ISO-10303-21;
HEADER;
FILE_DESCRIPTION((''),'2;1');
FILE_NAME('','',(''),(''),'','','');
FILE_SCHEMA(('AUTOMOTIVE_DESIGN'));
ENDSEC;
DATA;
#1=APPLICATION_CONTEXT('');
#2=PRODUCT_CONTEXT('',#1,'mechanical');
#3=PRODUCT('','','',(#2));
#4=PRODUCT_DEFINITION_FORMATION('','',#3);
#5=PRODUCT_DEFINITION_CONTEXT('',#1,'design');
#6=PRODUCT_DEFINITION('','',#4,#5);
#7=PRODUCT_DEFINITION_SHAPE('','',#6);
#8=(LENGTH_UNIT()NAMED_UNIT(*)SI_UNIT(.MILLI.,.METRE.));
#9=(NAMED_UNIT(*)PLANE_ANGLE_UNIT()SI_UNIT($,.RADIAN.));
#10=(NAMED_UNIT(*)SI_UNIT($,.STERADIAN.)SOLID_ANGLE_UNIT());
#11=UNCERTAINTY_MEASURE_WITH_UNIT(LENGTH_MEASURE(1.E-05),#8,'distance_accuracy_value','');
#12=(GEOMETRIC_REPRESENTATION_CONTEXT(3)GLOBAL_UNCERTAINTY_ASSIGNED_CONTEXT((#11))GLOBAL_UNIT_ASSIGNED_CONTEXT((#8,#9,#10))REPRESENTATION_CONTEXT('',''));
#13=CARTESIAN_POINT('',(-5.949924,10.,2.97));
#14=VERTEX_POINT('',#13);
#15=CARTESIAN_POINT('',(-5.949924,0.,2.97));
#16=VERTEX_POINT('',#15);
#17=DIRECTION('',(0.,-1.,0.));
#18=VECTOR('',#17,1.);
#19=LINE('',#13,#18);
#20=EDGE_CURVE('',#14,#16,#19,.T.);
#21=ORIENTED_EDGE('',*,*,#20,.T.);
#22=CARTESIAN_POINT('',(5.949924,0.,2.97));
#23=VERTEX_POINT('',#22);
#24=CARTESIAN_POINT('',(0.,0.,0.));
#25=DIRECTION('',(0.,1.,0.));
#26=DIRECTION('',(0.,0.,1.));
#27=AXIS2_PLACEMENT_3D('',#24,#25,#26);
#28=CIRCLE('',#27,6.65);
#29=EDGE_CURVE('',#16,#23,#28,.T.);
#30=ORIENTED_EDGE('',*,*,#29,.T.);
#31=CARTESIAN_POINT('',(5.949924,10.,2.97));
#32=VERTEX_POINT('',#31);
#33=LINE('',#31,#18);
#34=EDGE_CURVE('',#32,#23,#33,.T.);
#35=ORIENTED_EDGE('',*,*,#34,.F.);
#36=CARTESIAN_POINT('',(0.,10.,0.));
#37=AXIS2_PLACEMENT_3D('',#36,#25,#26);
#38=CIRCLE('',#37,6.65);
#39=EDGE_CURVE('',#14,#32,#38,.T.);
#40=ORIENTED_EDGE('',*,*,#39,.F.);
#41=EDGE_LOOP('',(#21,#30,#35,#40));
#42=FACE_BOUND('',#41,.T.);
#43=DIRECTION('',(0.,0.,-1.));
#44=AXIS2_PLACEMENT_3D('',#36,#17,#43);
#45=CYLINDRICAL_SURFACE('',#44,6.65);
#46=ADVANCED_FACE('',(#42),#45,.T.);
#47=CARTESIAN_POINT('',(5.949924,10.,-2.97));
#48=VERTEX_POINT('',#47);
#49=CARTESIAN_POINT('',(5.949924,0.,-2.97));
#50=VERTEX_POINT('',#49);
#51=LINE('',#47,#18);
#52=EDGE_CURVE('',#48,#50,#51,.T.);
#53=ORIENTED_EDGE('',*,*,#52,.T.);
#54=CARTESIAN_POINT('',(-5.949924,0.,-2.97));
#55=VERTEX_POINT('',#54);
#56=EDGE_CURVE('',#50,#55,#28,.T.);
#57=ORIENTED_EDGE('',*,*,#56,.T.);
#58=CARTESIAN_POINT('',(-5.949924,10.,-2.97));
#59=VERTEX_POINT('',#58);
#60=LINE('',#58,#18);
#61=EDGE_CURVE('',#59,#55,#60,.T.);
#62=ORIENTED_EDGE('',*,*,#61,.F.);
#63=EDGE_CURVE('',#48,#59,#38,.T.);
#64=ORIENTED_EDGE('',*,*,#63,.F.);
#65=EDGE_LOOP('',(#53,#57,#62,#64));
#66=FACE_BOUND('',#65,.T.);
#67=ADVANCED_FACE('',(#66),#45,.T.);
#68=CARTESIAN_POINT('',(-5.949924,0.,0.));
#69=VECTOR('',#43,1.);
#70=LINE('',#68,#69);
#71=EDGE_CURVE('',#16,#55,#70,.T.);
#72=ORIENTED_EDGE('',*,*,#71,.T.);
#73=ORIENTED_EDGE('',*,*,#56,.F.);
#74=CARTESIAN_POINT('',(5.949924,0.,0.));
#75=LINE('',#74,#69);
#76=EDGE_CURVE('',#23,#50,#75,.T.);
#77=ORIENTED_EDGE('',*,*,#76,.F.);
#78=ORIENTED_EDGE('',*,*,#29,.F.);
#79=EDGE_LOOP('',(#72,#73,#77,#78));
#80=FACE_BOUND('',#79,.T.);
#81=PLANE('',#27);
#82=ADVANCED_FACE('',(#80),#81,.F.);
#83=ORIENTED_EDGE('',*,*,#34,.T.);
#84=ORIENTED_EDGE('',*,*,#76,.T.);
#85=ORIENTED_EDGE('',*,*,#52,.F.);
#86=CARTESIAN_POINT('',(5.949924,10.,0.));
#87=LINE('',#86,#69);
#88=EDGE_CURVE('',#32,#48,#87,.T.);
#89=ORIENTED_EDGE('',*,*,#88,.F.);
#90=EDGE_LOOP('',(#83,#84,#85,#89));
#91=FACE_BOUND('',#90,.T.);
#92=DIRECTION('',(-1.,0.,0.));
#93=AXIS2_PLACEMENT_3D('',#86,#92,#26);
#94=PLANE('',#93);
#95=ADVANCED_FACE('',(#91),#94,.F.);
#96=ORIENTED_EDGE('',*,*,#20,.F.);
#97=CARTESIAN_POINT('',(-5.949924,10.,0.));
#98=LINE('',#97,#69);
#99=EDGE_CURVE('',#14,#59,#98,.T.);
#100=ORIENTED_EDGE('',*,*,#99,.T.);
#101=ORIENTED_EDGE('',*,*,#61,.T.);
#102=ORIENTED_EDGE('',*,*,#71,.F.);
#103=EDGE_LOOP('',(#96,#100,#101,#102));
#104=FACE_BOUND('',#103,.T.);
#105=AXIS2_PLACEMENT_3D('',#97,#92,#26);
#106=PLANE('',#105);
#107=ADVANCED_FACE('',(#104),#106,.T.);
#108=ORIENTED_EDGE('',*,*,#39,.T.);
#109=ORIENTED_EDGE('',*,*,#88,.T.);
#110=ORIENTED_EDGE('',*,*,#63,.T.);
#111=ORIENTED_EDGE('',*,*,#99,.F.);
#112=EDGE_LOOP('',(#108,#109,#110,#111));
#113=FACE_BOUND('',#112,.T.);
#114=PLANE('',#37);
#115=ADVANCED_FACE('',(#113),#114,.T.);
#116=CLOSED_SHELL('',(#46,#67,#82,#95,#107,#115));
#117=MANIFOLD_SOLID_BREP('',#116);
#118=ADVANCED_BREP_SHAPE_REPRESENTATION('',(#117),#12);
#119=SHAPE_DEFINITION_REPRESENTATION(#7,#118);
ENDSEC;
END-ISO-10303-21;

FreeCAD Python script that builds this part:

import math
import FreeCAD as App
import Part
import Sketcher
Q = App.Units.Quantity

doc = App.newDocument("Part")
params = doc.addObject("Spreadsheet::Sheet", "Params")
for row, (alias, value) in enumerate([
    ("sketch1_radius", "6.65 mm"),
    ("sketch1_height", "5.94 mm"),
    ("pad1_length", "10 mm"),
], start=1):
    params.set(f"A{row}", alias)
    params.set(f"B{row}", "=" + value)
    params.setAlias(f"B{row}", alias)

body = doc.addObject("PartDesign::Body", "Body")

# Sketch on XZ plane
sketch1 = body.newObject("Sketcher::SketchObject", "Sketch")
sketch1.AttachmentSupport = (doc.getObject("XZ_Plane"), [""])
sketch1.MapMode = "FlatFace"
sketch1.addGeometry([
    Part.LineSegment(App.Vector(-6, -3, 0), App.Vector(-6, 3, 0)),
    Part.ArcOfCircle(Part.Circle(App.Vector(0, 0, 0), App.Vector(0, 0, 1), 7), math.radians(27), math.radians(153)),
    Part.LineSegment(App.Vector(6, 3, 0), App.Vector(6, -3, 0)),
    Part.ArcOfCircle(Part.Circle(App.Vector(0, 0, 0), App.Vector(0, 0, 1), 7), math.radians(-153), math.radians(-27)),
], False)
sketch1.addConstraint([
    Sketcher.Constraint("Coincident", 0, 2, 1, 2),
    Sketcher.Constraint("Coincident", 1, 1, 2, 1),
    Sketcher.Constraint("Coincident", 2, 2, 3, 2),
    Sketcher.Constraint("Coincident", 3, 1, 0, 1),
    Sketcher.Constraint("Vertical", 0),
    Sketcher.Constraint("Vertical", 2),
    Sketcher.Constraint("Coincident", 1, 3, -1, 1),
    Sketcher.Constraint("Coincident", 3, 3, -1, 1),
    Sketcher.Constraint("Equal", 1, 3),
    Sketcher.Constraint("Horizontal", 0, 2, 1, 1),
    Sketcher.Constraint("Radius", 1, Q("6.65 mm")),
    Sketcher.Constraint("DistanceY", 0, 1, 0, 2, Q("5.94 mm")),
])
sketch1.setExpression("Constraints[10]", "Params.sketch1_radius")
sketch1.setExpression("Constraints[11]", "Params.sketch1_height")
pad1 = body.newObject("PartDesign::Pad", "Pad")
pad1.Profile = sketch1
pad1.setExpression("Length", "Params.pad1_length")
pad1.Reversed = True

doc.recompute()
